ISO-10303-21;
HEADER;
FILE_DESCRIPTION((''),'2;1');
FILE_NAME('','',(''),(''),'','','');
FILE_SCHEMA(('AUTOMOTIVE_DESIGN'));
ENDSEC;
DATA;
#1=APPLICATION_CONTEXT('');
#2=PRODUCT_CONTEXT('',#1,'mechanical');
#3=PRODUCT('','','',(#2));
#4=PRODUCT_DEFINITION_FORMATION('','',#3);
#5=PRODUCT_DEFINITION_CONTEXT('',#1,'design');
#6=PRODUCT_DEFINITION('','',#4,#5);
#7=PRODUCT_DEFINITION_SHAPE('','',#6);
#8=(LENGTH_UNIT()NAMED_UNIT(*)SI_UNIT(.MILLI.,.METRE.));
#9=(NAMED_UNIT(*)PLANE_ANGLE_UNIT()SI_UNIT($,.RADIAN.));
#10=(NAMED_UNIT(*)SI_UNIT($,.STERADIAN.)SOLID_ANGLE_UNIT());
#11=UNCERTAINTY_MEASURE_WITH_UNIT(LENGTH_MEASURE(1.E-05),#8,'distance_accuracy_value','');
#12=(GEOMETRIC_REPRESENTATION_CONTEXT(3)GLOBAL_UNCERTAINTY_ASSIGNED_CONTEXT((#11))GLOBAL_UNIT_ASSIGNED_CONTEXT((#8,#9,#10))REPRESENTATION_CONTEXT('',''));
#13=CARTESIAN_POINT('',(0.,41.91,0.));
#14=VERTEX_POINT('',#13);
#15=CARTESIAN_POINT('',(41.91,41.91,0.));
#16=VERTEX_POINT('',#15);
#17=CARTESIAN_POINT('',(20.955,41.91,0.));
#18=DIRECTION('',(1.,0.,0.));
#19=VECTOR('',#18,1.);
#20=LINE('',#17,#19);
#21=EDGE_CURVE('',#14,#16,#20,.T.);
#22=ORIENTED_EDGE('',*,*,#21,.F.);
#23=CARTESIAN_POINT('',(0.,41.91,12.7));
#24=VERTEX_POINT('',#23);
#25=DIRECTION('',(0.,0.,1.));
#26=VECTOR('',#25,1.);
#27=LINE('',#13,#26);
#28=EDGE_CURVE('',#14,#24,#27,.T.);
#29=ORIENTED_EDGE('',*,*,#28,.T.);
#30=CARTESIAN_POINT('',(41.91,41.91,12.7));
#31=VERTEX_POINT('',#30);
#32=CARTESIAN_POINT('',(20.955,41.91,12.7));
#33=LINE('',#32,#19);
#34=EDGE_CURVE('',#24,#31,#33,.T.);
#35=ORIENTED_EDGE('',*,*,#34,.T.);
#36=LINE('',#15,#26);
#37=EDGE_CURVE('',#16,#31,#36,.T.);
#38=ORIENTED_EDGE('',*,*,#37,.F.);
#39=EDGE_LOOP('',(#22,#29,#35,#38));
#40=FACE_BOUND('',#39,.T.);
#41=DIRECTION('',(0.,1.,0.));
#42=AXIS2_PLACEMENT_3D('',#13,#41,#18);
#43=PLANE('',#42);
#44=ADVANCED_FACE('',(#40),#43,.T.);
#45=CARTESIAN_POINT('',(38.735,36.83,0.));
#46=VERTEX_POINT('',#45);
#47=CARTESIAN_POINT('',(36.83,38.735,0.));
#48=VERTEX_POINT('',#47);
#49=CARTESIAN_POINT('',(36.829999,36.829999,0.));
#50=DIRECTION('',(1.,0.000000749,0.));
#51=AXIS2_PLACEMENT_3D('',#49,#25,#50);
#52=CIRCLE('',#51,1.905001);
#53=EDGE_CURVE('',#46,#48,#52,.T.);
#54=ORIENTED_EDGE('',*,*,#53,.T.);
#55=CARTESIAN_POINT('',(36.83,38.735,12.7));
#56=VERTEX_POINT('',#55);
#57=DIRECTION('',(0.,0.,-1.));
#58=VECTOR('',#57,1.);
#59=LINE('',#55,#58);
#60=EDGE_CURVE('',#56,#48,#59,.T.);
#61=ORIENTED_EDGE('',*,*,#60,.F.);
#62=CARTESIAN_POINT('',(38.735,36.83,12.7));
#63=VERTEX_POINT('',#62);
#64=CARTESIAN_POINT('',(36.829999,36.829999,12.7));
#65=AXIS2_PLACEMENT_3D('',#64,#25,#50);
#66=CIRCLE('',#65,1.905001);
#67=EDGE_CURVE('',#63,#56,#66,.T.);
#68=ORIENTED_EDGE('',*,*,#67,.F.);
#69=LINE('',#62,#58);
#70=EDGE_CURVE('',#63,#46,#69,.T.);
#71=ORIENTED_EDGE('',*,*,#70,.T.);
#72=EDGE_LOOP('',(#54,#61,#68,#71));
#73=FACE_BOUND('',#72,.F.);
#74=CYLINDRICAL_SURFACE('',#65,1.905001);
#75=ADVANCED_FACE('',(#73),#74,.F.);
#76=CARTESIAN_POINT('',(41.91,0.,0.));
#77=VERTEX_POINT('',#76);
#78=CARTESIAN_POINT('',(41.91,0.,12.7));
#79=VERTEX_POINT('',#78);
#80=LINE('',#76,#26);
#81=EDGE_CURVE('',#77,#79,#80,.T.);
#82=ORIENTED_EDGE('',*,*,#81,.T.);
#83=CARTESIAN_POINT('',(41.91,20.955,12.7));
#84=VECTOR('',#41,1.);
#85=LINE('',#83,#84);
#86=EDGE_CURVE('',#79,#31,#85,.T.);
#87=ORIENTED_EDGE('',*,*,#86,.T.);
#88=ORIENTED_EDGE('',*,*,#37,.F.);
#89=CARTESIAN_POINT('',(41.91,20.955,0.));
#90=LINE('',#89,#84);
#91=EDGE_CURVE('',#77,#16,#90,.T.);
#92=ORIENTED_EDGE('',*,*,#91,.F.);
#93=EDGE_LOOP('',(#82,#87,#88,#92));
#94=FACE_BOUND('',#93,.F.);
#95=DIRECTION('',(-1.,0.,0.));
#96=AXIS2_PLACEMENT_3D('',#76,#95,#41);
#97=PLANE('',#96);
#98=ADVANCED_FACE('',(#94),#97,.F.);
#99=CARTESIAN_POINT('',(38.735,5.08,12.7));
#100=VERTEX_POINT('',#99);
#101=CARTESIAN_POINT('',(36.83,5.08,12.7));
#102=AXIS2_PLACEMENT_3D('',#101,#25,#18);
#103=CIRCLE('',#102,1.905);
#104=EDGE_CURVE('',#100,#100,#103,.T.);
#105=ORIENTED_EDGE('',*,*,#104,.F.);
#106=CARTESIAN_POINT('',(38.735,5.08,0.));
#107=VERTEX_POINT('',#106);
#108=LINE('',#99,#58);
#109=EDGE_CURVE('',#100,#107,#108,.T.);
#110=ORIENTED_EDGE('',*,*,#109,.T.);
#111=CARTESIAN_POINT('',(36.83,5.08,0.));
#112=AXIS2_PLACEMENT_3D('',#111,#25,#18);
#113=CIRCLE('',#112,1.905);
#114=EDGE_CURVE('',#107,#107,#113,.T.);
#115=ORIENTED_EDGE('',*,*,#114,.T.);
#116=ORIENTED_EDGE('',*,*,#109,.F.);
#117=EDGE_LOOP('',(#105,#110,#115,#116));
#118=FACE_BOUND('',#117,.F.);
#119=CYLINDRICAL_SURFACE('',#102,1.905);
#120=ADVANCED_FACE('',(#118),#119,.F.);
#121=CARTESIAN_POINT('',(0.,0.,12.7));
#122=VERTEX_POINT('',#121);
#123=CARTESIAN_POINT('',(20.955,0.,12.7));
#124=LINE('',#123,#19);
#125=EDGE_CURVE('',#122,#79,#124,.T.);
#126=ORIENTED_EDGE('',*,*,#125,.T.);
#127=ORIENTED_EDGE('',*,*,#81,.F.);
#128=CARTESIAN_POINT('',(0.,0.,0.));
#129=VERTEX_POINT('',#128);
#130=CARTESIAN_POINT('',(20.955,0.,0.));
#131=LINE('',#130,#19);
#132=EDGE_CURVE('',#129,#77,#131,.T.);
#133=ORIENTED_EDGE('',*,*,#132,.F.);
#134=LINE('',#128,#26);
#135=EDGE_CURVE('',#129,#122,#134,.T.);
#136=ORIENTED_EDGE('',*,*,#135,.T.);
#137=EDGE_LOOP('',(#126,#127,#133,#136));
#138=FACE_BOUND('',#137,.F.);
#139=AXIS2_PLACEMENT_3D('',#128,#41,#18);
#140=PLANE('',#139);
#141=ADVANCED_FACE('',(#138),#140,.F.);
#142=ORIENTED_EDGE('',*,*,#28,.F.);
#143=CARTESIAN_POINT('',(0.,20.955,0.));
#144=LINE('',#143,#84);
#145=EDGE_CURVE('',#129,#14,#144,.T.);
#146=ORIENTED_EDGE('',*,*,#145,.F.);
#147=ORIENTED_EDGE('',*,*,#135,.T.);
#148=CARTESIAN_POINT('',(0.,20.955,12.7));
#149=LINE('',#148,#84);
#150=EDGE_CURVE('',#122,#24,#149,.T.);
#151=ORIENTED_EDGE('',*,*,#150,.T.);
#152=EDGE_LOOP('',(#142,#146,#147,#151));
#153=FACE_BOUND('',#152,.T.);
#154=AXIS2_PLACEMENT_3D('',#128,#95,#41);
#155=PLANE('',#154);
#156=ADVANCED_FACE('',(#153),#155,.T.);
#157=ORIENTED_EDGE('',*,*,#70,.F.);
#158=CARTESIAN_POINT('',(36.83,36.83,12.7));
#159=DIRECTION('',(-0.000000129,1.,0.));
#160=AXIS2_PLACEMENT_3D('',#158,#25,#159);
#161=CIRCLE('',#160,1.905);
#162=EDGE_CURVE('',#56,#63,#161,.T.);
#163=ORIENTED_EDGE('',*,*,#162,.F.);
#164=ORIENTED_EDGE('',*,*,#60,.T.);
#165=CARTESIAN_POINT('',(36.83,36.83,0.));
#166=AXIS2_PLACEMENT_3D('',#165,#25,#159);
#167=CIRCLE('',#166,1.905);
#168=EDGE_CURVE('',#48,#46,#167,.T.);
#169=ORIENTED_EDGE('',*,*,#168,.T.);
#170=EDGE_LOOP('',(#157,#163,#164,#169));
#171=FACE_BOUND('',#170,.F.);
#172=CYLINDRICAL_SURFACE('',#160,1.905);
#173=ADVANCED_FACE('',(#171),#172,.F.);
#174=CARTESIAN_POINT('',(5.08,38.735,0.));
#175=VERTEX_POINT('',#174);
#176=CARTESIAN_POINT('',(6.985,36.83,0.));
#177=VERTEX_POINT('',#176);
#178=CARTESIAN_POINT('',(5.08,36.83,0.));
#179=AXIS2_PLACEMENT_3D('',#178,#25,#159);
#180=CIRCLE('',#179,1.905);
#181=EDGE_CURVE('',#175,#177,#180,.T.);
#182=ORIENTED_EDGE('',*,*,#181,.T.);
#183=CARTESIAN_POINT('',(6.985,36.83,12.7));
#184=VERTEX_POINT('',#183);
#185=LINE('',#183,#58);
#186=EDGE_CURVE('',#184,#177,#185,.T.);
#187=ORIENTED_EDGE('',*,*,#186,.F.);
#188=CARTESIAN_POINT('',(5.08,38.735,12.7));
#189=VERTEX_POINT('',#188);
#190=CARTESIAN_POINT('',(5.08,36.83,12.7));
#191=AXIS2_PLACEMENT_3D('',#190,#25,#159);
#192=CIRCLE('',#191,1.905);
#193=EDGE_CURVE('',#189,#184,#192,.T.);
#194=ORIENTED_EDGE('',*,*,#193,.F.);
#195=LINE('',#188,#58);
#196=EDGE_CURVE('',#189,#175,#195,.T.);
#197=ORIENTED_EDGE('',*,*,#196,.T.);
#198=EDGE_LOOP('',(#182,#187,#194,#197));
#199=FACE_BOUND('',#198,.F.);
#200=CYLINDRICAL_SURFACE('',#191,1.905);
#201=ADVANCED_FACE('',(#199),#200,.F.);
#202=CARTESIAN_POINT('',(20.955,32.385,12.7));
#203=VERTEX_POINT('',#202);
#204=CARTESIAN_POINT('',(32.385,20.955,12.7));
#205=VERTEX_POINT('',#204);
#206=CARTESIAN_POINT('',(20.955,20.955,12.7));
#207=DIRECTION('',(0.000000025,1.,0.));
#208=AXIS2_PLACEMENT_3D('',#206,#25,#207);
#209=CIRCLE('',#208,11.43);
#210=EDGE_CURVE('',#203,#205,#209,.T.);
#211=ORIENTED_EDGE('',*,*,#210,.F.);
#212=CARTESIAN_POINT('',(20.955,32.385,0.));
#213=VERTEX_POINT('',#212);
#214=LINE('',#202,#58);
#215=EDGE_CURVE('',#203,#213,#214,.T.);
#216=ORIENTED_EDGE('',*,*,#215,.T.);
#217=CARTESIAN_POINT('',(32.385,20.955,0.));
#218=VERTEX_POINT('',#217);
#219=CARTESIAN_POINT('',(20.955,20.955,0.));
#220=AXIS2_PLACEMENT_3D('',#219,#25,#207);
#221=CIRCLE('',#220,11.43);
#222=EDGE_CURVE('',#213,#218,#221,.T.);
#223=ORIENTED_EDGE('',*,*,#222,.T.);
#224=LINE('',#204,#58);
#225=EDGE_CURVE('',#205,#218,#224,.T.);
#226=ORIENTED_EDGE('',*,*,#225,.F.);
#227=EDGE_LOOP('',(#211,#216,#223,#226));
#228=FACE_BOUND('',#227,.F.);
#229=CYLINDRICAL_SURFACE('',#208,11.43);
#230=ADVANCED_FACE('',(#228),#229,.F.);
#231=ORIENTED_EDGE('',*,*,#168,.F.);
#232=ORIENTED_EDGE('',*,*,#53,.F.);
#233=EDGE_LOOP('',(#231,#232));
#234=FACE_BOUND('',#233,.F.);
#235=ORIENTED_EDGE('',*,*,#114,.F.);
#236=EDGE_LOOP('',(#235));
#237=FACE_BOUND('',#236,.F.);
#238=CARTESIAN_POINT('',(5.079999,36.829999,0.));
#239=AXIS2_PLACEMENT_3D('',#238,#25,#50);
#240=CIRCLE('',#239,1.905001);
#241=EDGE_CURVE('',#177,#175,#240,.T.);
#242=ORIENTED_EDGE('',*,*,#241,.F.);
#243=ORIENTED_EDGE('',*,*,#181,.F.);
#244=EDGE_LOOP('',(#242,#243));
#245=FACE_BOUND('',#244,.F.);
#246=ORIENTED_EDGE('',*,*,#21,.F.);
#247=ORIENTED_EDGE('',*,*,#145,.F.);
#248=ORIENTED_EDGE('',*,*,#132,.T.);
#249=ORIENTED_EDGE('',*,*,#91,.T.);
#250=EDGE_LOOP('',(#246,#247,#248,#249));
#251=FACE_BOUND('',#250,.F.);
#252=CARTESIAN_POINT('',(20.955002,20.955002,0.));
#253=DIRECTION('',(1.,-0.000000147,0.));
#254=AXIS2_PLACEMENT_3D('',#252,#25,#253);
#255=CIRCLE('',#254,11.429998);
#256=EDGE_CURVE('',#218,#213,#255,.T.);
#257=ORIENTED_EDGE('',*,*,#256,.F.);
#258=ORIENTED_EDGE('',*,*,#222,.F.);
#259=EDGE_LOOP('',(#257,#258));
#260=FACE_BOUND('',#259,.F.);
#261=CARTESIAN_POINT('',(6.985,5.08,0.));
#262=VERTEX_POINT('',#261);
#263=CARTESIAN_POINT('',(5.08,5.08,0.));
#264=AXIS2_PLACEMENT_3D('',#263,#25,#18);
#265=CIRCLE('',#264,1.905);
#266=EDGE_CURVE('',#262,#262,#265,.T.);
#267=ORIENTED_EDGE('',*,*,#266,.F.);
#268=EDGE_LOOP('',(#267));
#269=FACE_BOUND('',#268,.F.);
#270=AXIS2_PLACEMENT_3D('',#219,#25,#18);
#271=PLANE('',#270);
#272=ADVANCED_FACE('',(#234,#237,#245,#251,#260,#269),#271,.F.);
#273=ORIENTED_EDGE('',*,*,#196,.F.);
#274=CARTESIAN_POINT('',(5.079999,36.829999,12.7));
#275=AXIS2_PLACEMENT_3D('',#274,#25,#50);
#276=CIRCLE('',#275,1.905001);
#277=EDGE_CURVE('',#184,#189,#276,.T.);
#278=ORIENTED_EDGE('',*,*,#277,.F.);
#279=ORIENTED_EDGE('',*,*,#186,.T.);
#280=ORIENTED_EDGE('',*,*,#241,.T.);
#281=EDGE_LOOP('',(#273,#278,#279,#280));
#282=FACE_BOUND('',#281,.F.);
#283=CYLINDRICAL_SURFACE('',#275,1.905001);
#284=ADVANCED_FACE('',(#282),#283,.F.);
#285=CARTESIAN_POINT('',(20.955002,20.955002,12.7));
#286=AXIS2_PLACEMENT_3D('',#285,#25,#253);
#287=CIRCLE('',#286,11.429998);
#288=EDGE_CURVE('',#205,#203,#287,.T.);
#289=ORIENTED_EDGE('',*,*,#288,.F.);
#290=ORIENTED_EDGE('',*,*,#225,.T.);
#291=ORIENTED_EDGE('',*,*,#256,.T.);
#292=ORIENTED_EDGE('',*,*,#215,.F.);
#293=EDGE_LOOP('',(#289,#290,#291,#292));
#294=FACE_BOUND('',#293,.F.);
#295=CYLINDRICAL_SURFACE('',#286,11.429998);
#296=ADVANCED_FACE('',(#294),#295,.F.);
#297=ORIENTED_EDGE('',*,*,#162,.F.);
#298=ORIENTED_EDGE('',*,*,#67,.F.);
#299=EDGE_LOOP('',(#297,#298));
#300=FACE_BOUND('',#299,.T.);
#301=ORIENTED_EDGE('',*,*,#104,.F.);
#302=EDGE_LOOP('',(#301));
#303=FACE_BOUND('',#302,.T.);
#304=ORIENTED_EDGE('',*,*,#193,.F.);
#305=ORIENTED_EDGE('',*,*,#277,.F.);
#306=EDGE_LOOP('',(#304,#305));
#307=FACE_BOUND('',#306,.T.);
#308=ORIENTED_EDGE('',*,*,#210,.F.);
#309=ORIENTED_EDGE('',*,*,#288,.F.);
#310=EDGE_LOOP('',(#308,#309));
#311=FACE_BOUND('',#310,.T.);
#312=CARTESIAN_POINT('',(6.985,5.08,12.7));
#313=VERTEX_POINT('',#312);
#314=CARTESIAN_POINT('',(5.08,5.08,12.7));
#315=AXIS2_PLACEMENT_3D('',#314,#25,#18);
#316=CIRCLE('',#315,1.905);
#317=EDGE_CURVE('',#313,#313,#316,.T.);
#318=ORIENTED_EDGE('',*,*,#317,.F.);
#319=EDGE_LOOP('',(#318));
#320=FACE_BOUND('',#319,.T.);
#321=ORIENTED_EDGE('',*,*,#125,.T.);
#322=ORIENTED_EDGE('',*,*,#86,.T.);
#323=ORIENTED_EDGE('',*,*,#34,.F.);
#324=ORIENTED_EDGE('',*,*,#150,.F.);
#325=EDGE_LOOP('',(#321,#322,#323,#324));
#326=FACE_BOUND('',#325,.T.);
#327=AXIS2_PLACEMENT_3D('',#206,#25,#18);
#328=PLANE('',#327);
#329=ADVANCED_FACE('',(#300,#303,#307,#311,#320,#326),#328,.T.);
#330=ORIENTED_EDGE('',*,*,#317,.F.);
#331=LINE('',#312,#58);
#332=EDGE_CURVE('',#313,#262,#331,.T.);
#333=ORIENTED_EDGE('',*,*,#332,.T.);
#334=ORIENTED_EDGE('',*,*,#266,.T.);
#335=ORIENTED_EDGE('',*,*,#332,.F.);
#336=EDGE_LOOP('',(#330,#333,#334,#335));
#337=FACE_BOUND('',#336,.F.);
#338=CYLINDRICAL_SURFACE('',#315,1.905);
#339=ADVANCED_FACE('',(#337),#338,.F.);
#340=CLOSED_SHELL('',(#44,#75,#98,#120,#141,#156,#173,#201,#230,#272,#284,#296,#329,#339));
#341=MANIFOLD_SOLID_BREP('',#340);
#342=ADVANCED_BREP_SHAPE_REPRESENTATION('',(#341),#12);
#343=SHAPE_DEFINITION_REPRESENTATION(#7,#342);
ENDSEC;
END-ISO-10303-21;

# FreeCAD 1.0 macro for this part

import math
import FreeCAD as App
import Part
import Sketcher
Q = App.Units.Quantity


def add_polygon(sketch, points):
    """Adds a closed chain of lines whose ends are joined by coincident constraints."""
    first, n = sketch.GeometryCount, len(points)
    for a, b in zip(points, points[1:] + points[:1]):
        sketch.addGeometry(Part.LineSegment(App.Vector(*a, 0), App.Vector(*b, 0)), False)
    for i in range(n):
        sketch.addConstraint(Sketcher.Constraint("Coincident", first + i, 2, first + (i + 1) % n, 1))

doc = App.newDocument("Part")
body = doc.addObject("PartDesign::Body", "Body")

# Sketch on XY plane
sketch1 = body.newObject("Sketcher::SketchObject", "Sketch")
sketch1.AttachmentSupport = (doc.getObject("XY_Plane"), [""])
sketch1.MapMode = "FlatFace"
add_polygon(sketch1, [(0, 42), (0, 0), (42, 0), (42, 42)])  # lines 0-3
sketch1.addConstraint([
    Sketcher.Constraint("Vertical", 0),
    Sketcher.Constraint("Horizontal", 1),
    Sketcher.Constraint("Vertical", 2),
    Sketcher.Constraint("Horizontal", 3),
    Sketcher.Constraint("Coincident", 0, 2, -1, 1),
    Sketcher.Constraint("Equal", 3, 0),
    Sketcher.Constraint("DistanceX", 1, 1, 1, 2, Q("1.65 in")),
])
pad1 = body.newObject("PartDesign::Pad", "Pad")
pad1.Profile = sketch1
pad1.Length = Q("0.5 in")

# Sketch on XY plane
sketch2 = body.newObject("Sketcher::SketchObject", "Sketch001")
sketch2.AttachmentSupport = (doc.getObject("XY_Plane"), [""])
sketch2.MapMode = "FlatFace"
sketch2.AttachmentOffset = App.Placement(App.Vector(0, 0, 0.5 * 25.4), App.Rotation())
sketch2.addGeometry([
    Part.ArcOfCircle(Part.Circle(App.Vector(36.8, 36.8, 0), App.Vector(0, 0, 1), 1.9), math.radians(0), math.radians(90)),  # 0
    Part.ArcOfCircle(Part.Circle(App.Vector(36.8, 36.8, 0), App.Vector(0, 0, 1), 1.9), math.radians(90), math.radians(360)),  # 1
    Part.Circle(App.Vector(5.1, 5.1, 0), App.Vector(0, 0, 1), 1.9),  # 2
    Part.ArcOfCircle(Part.Circle(App.Vector(5.1, 36.8, 0), App.Vector(0, 0, 1), 1.9), math.radians(0), math.radians(90)),  # 3
    Part.ArcOfCircle(Part.Circle(App.Vector(5.1, 36.8, 0), App.Vector(0, 0, 1), 1.9), math.radians(90), math.radians(360)),  # 4
    Part.Circle(App.Vector(36.8, 5.1, 0), App.Vector(0, 0, 1), 1.9),  # 5
], False)
sketch2.addConstraint([
    Sketcher.Constraint("Tangent", 0, 1, 1, 2),
    Sketcher.Constraint("Coincident", 1, 1, 0, 2),
    Sketcher.Constraint("Tangent", 3, 1, 4, 2),
    Sketcher.Constraint("Coincident", 4, 1, 3, 2),
    Sketcher.Constraint("Equal", 1, 2),
    Sketcher.Constraint("Equal", 2, 3),
    Sketcher.Constraint("Equal", 4, 5),
    Sketcher.Constraint("Horizontal", 1, 3, 3, 3),
    Sketcher.Constraint("Horizontal", 2, 3, 5, 3),
    Sketcher.Constraint("Horizontal", 4, 3, 0, 1),
    Sketcher.Constraint("Horizontal", 0, 1, 3, 1),
    Sketcher.Constraint("Vertical", 2, 3, 3, 3),
    Sketcher.Constraint("Vertical", 1, 3, 5, 3),
    Sketcher.Constraint("Vertical", 5, 3, 1, 1),
    Sketcher.Constraint("Vertical", 3, 3, 4, 1),
    Sketcher.Constraint("Diameter", 2, Q("0.15 in")),
    Sketcher.Constraint("DistanceX", -1, 1, 2, 3, Q("0.2 in")),
    Sketcher.Constraint("DistanceY", -1, 1, 2, 3, Q("0.2 in")),
    Sketcher.Constraint("DistanceX", -1, 1, 0, 3, Q("1.4499999 in")),
    Sketcher.Constraint("DistanceY", -1, 1, 0, 3, Q("1.4499999 in")),
])
pocket1 = body.newObject("PartDesign::Pocket", "Pocket")
pocket1.Profile = sketch2
pocket1.Length = Q("1 in")

# Sketch on XY plane
sketch3 = body.newObject("Sketcher::SketchObject", "Sketch002")
sketch3.AttachmentSupport = (doc.getObject("XY_Plane"), [""])
sketch3.MapMode = "FlatFace"
sketch3.AttachmentOffset = App.Placement(App.Vector(0, 0, 0.5 * 25.4), App.Rotation())
sketch3.addGeometry([
    Part.ArcOfCircle(Part.Circle(App.Vector(21, 21, 0), App.Vector(0, 0, 1), 11), math.radians(90), math.radians(360)),
    Part.ArcOfCircle(Part.Circle(App.Vector(21, 21, 0), App.Vector(0, 0, 1), 11), math.radians(0), math.radians(90)),
], False)
sketch3.addConstraint([
    Sketcher.Constraint("Tangent", 0, 1, 1, 2),
    Sketcher.Constraint("Coincident", 1, 1, 0, 2),
    Sketcher.Constraint("Horizontal", 0, 3, 1, 1),
    Sketcher.Constraint("Vertical", 1, 3, 0, 1),
    Sketcher.Constraint("Radius", 0, Q("0.45 in")),
    Sketcher.Constraint("DistanceX", -1, 1, 0, 3, Q("0.825 in")),
    Sketcher.Constraint("DistanceY", -1, 1, 0, 3, Q("0.825 in")),
])
pocket2 = body.newObject("PartDesign::Pocket", "Pocket001")
pocket2.Profile = sketch3
pocket2.Type = "ThroughAll"

doc.recompute()
